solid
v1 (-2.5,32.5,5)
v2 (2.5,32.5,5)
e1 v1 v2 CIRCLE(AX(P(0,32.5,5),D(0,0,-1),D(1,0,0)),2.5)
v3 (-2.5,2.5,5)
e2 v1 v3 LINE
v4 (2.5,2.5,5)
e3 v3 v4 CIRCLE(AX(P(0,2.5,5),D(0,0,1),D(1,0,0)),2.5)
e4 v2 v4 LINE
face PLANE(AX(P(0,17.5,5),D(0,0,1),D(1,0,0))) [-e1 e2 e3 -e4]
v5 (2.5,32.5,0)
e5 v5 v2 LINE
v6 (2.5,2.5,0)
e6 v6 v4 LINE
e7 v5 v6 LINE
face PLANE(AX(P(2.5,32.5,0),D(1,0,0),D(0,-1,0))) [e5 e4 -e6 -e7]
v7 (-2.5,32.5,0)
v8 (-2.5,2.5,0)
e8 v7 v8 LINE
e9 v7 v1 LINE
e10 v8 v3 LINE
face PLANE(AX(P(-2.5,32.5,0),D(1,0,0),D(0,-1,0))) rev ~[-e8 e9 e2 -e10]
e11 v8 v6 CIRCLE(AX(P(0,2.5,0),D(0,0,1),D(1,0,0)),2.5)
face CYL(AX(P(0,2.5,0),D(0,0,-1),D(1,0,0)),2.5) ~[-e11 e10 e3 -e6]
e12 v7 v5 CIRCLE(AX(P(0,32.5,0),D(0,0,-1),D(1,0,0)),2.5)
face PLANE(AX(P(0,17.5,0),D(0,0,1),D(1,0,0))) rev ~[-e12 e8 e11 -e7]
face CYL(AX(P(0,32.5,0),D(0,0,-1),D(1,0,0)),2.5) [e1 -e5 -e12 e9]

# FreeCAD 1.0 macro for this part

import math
import FreeCAD as App
import Part
import Sketcher

V = App.Vector

doc = App.newDocument("Part")
body = doc.addObject("PartDesign::Body", "Body")

# Sketch on XY plane
sketch1 = body.newObject("Sketcher::SketchObject", "Sketch")
sketch1.AttachmentSupport = (doc.getObject("XY_Plane"), [""])
sketch1.MapMode = "FlatFace"
sketch1.addGeometry([
    Part.ArcOfCircle(Part.Circle(V(0, 32.5, 0), V(0, 0, 1), 2.5), math.radians(0), math.radians(180)),
    Part.LineSegment(V(-2.5, 32.5, 0), V(-2.5, 2.5, 0)),
    Part.ArcOfCircle(Part.Circle(V(0, 2.5, 0), V(0, 0, 1), 2.5), math.radians(180), math.radians(360)),
    Part.LineSegment(V(2.5, 2.5, 0), V(2.5, 32.5, 0)),
], False)
sketch1.addConstraint([
    Sketcher.Constraint("Tangent", 0, 2, 1, 1),
    Sketcher.Constraint("Tangent", 1, 2, 2, 1),
    Sketcher.Constraint("Tangent", 2, 2, 3, 1),
    Sketcher.Constraint("Tangent", 3, 2, 0, 1),
    Sketcher.Constraint("Vertical", 1),
    Sketcher.Constraint("Vertical", 3),
    Sketcher.Constraint("PointOnObject", 0, 3, -2),
    Sketcher.Constraint("Radius", 0, 2.5),
    Sketcher.Constraint("DistanceY", 1, 2, 1, 1, 30.0),
    Sketcher.Constraint("DistanceY", -1, 1, 0, 3, 32.5),
])
pad1 = body.newObject("PartDesign::Pad", "Pad")
pad1.Profile = sketch1
pad1.Length = 5

doc.recompute()
